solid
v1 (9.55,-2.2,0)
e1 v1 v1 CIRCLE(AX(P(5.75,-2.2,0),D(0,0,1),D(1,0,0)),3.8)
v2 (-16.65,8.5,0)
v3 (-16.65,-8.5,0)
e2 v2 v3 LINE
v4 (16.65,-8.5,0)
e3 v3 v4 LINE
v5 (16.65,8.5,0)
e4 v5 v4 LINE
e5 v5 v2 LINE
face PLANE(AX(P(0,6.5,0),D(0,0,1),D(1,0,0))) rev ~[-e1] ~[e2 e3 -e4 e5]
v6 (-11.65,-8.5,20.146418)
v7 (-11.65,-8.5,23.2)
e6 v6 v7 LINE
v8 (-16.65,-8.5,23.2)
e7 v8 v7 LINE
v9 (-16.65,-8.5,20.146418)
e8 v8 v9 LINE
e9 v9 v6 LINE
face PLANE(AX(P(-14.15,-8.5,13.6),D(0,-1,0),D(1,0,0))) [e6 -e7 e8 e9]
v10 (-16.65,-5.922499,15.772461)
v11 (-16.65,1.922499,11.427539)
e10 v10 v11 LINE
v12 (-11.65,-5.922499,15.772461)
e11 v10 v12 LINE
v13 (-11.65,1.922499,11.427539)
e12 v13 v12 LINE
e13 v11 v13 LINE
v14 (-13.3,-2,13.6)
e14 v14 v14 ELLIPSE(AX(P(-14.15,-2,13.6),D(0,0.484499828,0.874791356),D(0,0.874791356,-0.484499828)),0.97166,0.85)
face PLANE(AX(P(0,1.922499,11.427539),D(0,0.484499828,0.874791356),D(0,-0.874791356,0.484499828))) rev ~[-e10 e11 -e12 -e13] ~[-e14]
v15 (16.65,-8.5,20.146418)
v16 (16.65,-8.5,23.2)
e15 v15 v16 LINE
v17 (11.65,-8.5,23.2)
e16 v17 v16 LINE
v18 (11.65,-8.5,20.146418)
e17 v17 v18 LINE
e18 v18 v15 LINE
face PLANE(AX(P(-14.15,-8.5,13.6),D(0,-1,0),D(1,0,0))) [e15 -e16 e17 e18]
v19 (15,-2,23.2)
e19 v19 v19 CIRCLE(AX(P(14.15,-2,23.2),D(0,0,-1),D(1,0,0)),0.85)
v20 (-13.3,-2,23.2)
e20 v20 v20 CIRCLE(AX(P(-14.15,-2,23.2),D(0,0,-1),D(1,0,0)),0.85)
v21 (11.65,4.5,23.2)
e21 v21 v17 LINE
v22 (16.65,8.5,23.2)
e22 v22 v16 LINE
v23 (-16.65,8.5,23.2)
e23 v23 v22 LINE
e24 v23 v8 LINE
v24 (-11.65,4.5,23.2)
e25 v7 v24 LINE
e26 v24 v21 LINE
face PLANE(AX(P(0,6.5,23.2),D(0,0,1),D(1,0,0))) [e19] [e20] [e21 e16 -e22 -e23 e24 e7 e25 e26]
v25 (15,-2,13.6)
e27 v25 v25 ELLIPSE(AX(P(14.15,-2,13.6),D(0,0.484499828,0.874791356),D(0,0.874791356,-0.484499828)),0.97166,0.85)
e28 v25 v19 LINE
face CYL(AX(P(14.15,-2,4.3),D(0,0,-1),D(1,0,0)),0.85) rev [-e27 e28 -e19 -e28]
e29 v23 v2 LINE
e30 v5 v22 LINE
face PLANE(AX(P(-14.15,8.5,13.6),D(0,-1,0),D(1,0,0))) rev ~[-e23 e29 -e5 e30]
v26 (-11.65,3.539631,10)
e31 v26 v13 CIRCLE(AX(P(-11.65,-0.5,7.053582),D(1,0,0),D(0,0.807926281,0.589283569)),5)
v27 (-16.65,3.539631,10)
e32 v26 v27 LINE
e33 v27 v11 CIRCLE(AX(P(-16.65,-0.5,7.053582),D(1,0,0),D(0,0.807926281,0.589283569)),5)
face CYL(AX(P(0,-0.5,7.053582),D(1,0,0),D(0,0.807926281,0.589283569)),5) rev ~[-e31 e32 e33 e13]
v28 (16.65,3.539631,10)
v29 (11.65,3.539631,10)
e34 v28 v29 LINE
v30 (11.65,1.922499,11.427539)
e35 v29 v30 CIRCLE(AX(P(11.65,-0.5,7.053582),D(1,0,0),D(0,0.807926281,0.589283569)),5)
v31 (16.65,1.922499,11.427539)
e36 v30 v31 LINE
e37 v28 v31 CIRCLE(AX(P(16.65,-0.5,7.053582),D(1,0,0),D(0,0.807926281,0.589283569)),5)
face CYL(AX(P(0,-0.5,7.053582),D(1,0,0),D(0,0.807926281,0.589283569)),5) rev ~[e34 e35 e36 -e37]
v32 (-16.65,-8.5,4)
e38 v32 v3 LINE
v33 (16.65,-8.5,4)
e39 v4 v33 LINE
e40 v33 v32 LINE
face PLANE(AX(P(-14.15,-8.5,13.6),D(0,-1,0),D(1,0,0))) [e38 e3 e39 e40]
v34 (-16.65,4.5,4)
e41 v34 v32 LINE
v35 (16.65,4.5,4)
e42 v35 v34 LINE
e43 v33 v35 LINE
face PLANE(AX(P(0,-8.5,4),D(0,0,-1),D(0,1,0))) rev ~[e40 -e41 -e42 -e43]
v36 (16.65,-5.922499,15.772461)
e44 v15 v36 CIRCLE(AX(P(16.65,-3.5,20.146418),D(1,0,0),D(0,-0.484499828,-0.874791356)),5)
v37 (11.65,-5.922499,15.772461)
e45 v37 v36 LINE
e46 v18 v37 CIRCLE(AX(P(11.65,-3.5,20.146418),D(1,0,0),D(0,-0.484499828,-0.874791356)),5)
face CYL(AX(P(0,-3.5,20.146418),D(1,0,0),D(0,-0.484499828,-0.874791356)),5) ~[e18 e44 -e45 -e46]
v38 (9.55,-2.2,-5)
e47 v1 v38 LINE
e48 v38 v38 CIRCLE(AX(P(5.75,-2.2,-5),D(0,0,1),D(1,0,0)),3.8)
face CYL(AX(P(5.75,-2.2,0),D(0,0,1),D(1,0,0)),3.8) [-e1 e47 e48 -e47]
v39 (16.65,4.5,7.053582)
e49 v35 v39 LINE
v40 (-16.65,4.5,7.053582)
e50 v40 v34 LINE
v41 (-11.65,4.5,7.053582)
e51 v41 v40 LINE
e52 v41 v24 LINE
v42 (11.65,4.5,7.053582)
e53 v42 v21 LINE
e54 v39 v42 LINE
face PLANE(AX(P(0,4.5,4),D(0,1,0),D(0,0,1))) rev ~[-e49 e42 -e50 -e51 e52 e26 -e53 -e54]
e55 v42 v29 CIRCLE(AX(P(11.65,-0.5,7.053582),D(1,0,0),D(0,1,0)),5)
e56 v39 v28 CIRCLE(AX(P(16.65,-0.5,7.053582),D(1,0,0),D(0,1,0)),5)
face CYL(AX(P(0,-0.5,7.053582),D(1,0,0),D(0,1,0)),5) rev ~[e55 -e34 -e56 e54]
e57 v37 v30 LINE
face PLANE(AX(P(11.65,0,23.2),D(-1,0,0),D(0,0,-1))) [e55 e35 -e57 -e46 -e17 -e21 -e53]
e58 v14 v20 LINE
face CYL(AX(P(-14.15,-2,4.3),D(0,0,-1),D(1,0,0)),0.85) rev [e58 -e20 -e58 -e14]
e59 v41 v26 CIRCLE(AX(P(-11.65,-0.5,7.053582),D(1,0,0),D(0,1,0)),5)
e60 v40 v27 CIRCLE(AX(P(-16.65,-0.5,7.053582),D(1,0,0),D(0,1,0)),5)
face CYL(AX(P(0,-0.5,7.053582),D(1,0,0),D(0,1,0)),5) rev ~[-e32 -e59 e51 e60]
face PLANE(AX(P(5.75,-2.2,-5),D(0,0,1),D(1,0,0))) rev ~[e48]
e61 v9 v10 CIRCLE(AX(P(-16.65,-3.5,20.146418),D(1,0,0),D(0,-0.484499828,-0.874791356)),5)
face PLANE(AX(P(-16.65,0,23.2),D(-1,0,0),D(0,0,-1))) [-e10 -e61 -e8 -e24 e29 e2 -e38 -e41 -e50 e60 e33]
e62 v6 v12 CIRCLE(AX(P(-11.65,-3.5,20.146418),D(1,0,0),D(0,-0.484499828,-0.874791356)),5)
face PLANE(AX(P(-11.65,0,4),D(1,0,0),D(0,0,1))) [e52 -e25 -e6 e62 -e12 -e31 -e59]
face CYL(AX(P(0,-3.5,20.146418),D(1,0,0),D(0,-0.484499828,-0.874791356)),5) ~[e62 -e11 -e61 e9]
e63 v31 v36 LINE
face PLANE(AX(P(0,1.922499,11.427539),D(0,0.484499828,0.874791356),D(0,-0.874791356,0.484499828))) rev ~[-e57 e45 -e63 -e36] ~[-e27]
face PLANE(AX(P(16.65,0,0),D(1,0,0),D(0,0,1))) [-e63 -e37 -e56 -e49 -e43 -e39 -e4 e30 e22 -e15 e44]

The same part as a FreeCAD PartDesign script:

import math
import FreeCAD as App
import Part
import Sketcher

V = App.Vector

doc = App.newDocument("Part")
params = doc.addObject("Spreadsheet::Sheet", "Params")
for row, (alias, value) in enumerate([
    ("sketch1_width", "5 mm"),
    ("sketch1_width2", "33.3 mm"),
    ("sketch1_height", "23.2 mm"),
    ("sketch1_height2", "19.2 mm"),
    ("pad1_length", "17 mm"),
    ("sketch2_height", "4 mm"),
    ("sketch2_width", "23.3 mm"),
    ("pad2_length", "23.2 mm"),
    ("sketch3_radius", "5 mm"),
    ("sketch3_width", "13 mm"),
    ("pocket1_length", "36.2 mm"),
    ("sketch4_diameter", "1.7 mm"),
    ("pocket2_length", "20.7 mm"),
    ("sketch5_diameter", "7.6 mm"),
    ("pad3_length", "5 mm"),
], start=1):
    params.set(f"A{row}", alias)
    params.set(f"B{row}", "=" + value)
    params.setAlias(f"B{row}", alias)

body = doc.addObject("PartDesign::Body", "Body")

# Sketch on XZ plane
sketch1 = body.newObject("Sketcher::SketchObject", "Sketch")
sketch1.AttachmentSupport = (doc.getObject("XZ_Plane"), [""])
sketch1.MapMode = "FlatFace"
sketch1.addGeometry(Part.LineSegment(V(-11.7, 23.2, 0), V(-16.6, 23.2, 0)), False)
sketch1.addGeometry(Part.LineSegment(V(-16.6, 23.2, 0), V(-16.6, 0, 0)), False)
sketch1.addGeometry(Part.LineSegment(V(-16.6, 0, 0), V(16.6, 0, 0)), False)
sketch1.addGeometry(Part.LineSegment(V(16.6, 0, 0), V(16.6, 23.2, 0)), False)
sketch1.addGeometry(Part.LineSegment(V(16.6, 23.2, 0), V(11.7, 23.2, 0)), False)
sketch1.addGeometry(Part.LineSegment(V(11.7, 23.2, 0), V(11.7, 4, 0)), False)
sketch1.addGeometry(Part.LineSegment(V(11.7, 4, 0), V(-11.7, 4, 0)), False)
sketch1.addGeometry(Part.LineSegment(V(-11.7, 4, 0), V(-11.7, 23.2, 0)), False)
sketch1.addConstraint(Sketcher.Constraint("Coincident", 0, 2, 1, 1))
sketch1.addConstraint(Sketcher.Constraint("Coincident", 1, 2, 2, 1))
sketch1.addConstraint(Sketcher.Constraint("Coincident", 2, 2, 3, 1))
sketch1.addConstraint(Sketcher.Constraint("Coincident", 3, 2, 4, 1))
sketch1.addConstraint(Sketcher.Constraint("Coincident", 4, 2, 5, 1))
sketch1.addConstraint(Sketcher.Constraint("Coincident", 5, 2, 6, 1))
sketch1.addConstraint(Sketcher.Constraint("Coincident", 6, 2, 7, 1))
sketch1.addConstraint(Sketcher.Constraint("Coincident", 7, 2, 0, 1))
sketch1.addConstraint(Sketcher.Constraint("Horizontal", 0))
sketch1.addConstraint(Sketcher.Constraint("Vertical", 1))
sketch1.addConstraint(Sketcher.Constraint("Horizontal", 2))
sketch1.addConstraint(Sketcher.Constraint("Vertical", 3))
sketch1.addConstraint(Sketcher.Constraint("Horizontal", 4))
sketch1.addConstraint(Sketcher.Constraint("Vertical", 5))
sketch1.addConstraint(Sketcher.Constraint("Horizontal", 6))
sketch1.addConstraint(Sketcher.Constraint("Vertical", 7))
sketch1.addConstraint(Sketcher.Constraint("Symmetric", 1, 2, 2, 2, -1, 1))
sketch1.addConstraint(Sketcher.Constraint("Symmetric", 4, 2, 7, 2, -2))
sketch1.addConstraint(Sketcher.Constraint("DistanceX", 0, 2, 0, 1, 5.0))
sketch1.addConstraint(Sketcher.Constraint("DistanceX", 2, 1, 2, 2, 33.3))
sketch1.addConstraint(Sketcher.Constraint("DistanceY", 1, 2, 1, 1, 23.2))
sketch1.addConstraint(Sketcher.Constraint("DistanceY", 5, 2, 5, 1, 19.2))
sketch1.setExpression("Constraints[18]", "Params.sketch1_width")
sketch1.setExpression("Constraints[19]", "Params.sketch1_width2")
sketch1.setExpression("Constraints[20]", "Params.sketch1_height")
sketch1.setExpression("Constraints[21]", "Params.sketch1_height2")
pad1 = body.newObject("PartDesign::Pad", "Pad")
pad1.Profile = sketch1
pad1.setExpression("Length", "Params.pad1_length")
pad1.Midplane = True

# Sketch on XY plane
sketch2 = body.newObject("Sketcher::SketchObject", "Sketch001")
sketch2.AttachmentSupport = (doc.getObject("XY_Plane"), [""])
sketch2.MapMode = "FlatFace"
sketch2.addGeometry(Part.LineSegment(V(11.7, 4.5, 0), V(11.7, 8.5, 0)), False)
sketch2.addGeometry(Part.LineSegment(V(11.7, 8.5, 0), V(-11.7, 8.5, 0)), False)
sketch2.addGeometry(Part.LineSegment(V(-11.7, 8.5, 0), V(-11.7, 4.5, 0)), False)
sketch2.addGeometry(Part.LineSegment(V(-11.7, 4.5, 0), V(11.7, 4.5, 0)), False)
sketch2.addConstraint(Sketcher.Constraint("Coincident", 0, 2, 1, 1))
sketch2.addConstraint(Sketcher.Constraint("Coincident", 1, 2, 2, 1))
sketch2.addConstraint(Sketcher.Constraint("Coincident", 2, 2, 3, 1))
sketch2.addConstraint(Sketcher.Constraint("Coincident", 3, 2, 0, 1))
sketch2.addConstraint(Sketcher.Constraint("Vertical", 0))
sketch2.addConstraint(Sketcher.Constraint("Horizontal", 1))
sketch2.addConstraint(Sketcher.Constraint("Vertical", 2))
sketch2.addConstraint(Sketcher.Constraint("Horizontal", 3))
sketch2.addConstraint(Sketcher.Constraint("DistanceY", 0, 1, 0, 2, 4.0))
sketch2.addConstraint(Sketcher.Constraint("DistanceX", 1, 2, 1, 1, 23.3))
sketch2.addConstraint(Sketcher.Constraint("DistanceY", -1, 1, 0, 2, 8.5))
sketch2.addConstraint(Sketcher.Constraint("DistanceX", -1, 1, 0, 2, 11.65))
sketch2.setExpression("Constraints[8]", "Params.sketch2_height")
sketch2.setExpression("Constraints[9]", "Params.sketch2_width")
pad2 = body.newObject("PartDesign::Pad", "Pad001")
pad2.Profile = sketch2
pad2.setExpression("Length", "Params.pad2_length")

# Sketch on YZ plane
sketch3 = body.newObject("Sketcher::SketchObject", "Sketch002")
sketch3.AttachmentSupport = (doc.getObject("YZ_Plane"), [""])
sketch3.MapMode = "FlatFace"
sketch3.addGeometry(Part.ArcOfCircle(Part.Circle(V(-0.5, 7.1, 0), V(0, 0, 1), 5), math.radians(36), math.radians(61)), False)
sketch3.addGeometry(Part.LineSegment(V(1.9, 11.4, 0), V(-5.9, 15.8, 0)), False)
sketch3.addGeometry(Part.ArcOfCircle(Part.Circle(V(-3.5, 20.1, 0), V(0, 0, 1), 5), math.radians(-144), math.radians(-119)), False)
sketch3.addGeometry(Part.ArcOfCircle(Part.Circle(V(-3.5, 20.1, 0), V(0, 0, 1), 5), math.radians(180), math.radians(216)), False)
sketch3.addGeometry(Part.LineSegment(V(-8.5, 20.1, 0), V(-8.5, 4, 0)), False)
sketch3.addGeometry(Part.LineSegment(V(-8.5, 4, 0), V(4.5, 4, 0)), False)
sketch3.addGeometry(Part.LineSegment(V(4.5, 4, 0), V(4.5, 7.1, 0)), False)
sketch3.addGeometry(Part.ArcOfCircle(Part.Circle(V(-0.5, 7.1, 0), V(0, 0, 1), 5), math.radians(0), math.radians(36)), False)
sketch3.addConstraint(Sketcher.Constraint("Tangent", 0, 2, 1, 1))
sketch3.addConstraint(Sketcher.Constraint("Tangent", 1, 2, 2, 2))
sketch3.addConstraint(Sketcher.Constraint("Tangent", 2, 1, 3, 2))
sketch3.addConstraint(Sketcher.Constraint("Tangent", 3, 1, 4, 1))
sketch3.addConstraint(Sketcher.Constraint("Coincident", 4, 2, 5, 1))
sketch3.addConstraint(Sketcher.Constraint("Coincident", 5, 2, 6, 1))
sketch3.addConstraint(Sketcher.Constraint("Tangent", 6, 2, 7, 1))
sketch3.addConstraint(Sketcher.Constraint("Tangent", 7, 2, 0, 1))
sketch3.addConstraint(Sketcher.Constraint("Vertical", 4))
sketch3.addConstraint(Sketcher.Constraint("Horizontal", 5))
sketch3.addConstraint(Sketcher.Constraint("Vertical", 6))
sketch3.addConstraint(Sketcher.Constraint("Equal", 0, 2))
sketch3.addConstraint(Sketcher.Constraint("Equal", 2, 3))
sketch3.addConstraint(Sketcher.Constraint("Equal", 3, 7))
sketch3.addConstraint(Sketcher.Constraint("Radius", 0, 5.0))
sketch3.addConstraint(Sketcher.Constraint("DistanceX", 5, 1, 5, 2, 13.0))
sketch3.addConstraint(Sketcher.Constraint("DistanceY", -1, 1, 4, 2, 4.0))
sketch3.addConstraint(Sketcher.Constraint("DistanceY", -1, 1, 7, 2, 10.0))
sketch3.addConstraint(Sketcher.Constraint("DistanceX", 0, 3, -1, 1, 0.5))
sketch3.addConstraint(Sketcher.Constraint("DistanceY", -1, 1, 2, 1, 17.2))
sketch3.addConstraint(Sketcher.Constraint("DistanceX", 1, 2, 0, 2, 7.844998))
sketch3.addConstraint(Sketcher.Constraint("DistanceY", 4, 2, 4, 1, 16.146418))
sketch3.setExpression("Constraints[14]", "Params.sketch3_radius")
sketch3.setExpression("Constraints[15]", "Params.sketch3_width")
pocket1 = body.newObject("PartDesign::Pocket", "Pocket")
pocket1.Profile = sketch3
pocket1.setExpression("Length", "Params.pocket1_length")
pocket1.Midplane = True

# Sketch on XY plane
sketch4 = body.newObject("Sketcher::SketchObject", "Sketch003")
sketch4.AttachmentSupport = (doc.getObject("XY_Plane"), [""])
sketch4.MapMode = "FlatFace"
sketch4.AttachmentOffset = App.Placement(V(0, 0, 4.3), App.Rotation())
sketch4.addGeometry(Part.Circle(V(14.2, -2, 0), V(0, 0, 1), 0.8), False)
sketch4.addGeometry(Part.Circle(V(-14.2, -2, 0), V(0, 0, 1), 0.8), False)
sketch4.addConstraint(Sketcher.Constraint("Equal", 0, 1))
sketch4.addConstraint(Sketcher.Constraint("Symmetric", 0, 3, 1, 3, -2))
sketch4.addConstraint(Sketcher.Constraint("Diameter", 0, 1.7))
sketch4.addConstraint(Sketcher.Constraint("DistanceY", 0, 3, -1, 1, 2.0))
sketch4.addConstraint(Sketcher.Constraint("DistanceX", 1, 3, 0, 3, 28.3))
sketch4.setExpression("Constraints[2]", "Params.sketch4_diameter")
pocket2 = body.newObject("PartDesign::Pocket", "Pocket001")
pocket2.Profile = sketch4
pocket2.setExpression("Length", "Params.pocket2_length")
pocket2.Reversed = True

# Sketch on XY plane
sketch5 = body.newObject("Sketcher::SketchObject", "Sketch004")
sketch5.AttachmentSupport = (doc.getObject("XY_Plane"), [""])
sketch5.MapMode = "FlatFace"
sketch5.addGeometry(Part.Circle(V(5.8, -2.2, 0), V(0, 0, 1), 3.8), False)
sketch5.addConstraint(Sketcher.Constraint("Diameter", 0, 7.6))
sketch5.addConstraint(Sketcher.Constraint("DistanceY", 0, 3, -1, 1, 2.2))
sketch5.addConstraint(Sketcher.Constraint("DistanceX", -1, 1, 0, 3, 5.75))
sketch5.setExpression("Constraints[0]", "Params.sketch5_diameter")
pad3 = body.newObject("PartDesign::Pad", "Pad002")
pad3.Profile = sketch5
pad3.setExpression("Length", "Params.pad3_length")
pad3.Reversed = True

doc.recompute()
